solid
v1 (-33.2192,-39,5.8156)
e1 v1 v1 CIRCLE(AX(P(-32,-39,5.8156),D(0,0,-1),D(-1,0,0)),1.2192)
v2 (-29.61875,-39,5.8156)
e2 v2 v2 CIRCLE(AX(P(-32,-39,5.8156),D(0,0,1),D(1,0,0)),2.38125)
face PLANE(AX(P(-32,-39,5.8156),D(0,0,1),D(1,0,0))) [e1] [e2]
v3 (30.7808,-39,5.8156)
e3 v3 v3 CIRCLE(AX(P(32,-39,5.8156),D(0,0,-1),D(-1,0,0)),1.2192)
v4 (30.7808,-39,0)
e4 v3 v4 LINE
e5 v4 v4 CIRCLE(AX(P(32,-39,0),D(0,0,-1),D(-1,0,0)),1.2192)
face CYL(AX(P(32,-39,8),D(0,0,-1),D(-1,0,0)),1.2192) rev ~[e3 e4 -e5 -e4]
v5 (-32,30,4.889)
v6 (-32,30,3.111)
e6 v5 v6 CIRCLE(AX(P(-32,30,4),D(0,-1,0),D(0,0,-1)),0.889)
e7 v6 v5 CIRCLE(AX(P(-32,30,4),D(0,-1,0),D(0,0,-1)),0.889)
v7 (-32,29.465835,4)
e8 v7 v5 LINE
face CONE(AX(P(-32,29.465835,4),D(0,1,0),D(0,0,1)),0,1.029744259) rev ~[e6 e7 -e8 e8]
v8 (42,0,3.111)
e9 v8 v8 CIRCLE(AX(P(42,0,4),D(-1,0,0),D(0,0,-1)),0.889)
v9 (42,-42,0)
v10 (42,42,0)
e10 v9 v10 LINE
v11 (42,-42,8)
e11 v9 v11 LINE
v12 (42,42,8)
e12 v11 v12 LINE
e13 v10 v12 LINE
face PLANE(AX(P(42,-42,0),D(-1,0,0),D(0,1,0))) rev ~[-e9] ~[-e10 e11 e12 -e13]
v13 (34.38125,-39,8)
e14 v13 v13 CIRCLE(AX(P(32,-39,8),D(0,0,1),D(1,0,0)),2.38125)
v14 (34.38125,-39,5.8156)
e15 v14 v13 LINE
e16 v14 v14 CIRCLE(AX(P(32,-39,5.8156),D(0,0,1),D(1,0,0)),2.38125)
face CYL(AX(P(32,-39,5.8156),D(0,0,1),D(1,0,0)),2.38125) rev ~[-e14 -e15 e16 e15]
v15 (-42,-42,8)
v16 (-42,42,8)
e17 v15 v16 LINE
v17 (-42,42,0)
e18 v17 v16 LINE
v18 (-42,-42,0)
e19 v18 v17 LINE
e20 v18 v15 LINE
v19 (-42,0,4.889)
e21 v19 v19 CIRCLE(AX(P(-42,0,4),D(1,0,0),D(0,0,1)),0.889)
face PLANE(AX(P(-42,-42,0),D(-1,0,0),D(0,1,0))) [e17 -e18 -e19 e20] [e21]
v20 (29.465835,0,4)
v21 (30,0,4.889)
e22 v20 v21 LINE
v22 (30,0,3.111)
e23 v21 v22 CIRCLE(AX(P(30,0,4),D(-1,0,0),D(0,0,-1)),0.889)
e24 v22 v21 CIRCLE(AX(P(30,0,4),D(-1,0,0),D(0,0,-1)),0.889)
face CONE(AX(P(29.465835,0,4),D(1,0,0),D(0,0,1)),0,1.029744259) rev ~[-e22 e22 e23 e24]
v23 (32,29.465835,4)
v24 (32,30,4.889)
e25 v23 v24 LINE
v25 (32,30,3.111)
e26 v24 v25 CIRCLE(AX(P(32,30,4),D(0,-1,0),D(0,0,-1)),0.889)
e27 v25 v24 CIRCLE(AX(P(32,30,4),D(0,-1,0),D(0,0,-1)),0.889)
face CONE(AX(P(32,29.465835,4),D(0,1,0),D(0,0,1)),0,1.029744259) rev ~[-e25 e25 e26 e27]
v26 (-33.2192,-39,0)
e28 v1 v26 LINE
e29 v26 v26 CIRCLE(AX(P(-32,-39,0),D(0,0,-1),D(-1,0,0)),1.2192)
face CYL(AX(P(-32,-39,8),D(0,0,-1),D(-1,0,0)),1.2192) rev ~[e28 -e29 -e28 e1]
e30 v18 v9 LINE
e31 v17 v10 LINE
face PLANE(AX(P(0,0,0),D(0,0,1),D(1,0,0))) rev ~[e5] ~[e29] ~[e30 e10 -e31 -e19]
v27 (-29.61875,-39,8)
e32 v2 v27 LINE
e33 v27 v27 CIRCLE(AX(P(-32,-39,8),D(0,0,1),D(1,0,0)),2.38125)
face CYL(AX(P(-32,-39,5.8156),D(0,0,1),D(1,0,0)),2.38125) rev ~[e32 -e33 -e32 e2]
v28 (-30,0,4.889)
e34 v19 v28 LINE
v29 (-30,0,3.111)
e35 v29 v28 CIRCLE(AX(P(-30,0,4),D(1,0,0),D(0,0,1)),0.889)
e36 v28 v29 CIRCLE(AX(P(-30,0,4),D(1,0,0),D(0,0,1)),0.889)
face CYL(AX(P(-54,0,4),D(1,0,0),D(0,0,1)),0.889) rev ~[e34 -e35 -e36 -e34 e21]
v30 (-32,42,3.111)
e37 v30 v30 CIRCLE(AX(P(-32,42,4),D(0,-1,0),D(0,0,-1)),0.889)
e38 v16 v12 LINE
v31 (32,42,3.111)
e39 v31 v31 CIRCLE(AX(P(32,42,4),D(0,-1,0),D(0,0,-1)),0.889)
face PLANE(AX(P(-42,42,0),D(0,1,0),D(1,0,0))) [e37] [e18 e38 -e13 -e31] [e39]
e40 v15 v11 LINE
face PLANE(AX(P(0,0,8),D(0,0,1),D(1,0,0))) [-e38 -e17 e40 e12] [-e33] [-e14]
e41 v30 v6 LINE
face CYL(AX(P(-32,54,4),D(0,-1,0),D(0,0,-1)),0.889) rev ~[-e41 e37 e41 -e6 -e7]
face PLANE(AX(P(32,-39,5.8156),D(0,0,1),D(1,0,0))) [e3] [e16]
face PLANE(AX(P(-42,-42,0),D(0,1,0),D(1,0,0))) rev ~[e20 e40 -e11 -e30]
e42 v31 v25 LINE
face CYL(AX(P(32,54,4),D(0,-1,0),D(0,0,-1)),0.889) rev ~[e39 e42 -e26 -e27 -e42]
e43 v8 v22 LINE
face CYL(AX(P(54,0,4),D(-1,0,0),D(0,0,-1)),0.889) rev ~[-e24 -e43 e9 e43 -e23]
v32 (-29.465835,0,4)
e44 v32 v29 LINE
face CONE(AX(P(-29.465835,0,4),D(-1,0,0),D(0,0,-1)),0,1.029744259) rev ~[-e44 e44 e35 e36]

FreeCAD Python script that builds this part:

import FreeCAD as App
import Part
import Sketcher
from FreeCAD import Vector

doc = App.newDocument("Part")
body = doc.addObject("PartDesign::Body", "Body")

# Sketch on XY plane
sketch1 = body.newObject("Sketcher::SketchObject", "Sketch")
sketch1.AttachmentSupport = (doc.getObject("XY_Plane"), [""])
sketch1.MapMode = "FlatFace"
sketch1.addGeometry(Part.LineSegment(Vector(-42, 42, 0), Vector(-42, -42, 0)), False)
sketch1.addGeometry(Part.LineSegment(Vector(-42, -42, 0), Vector(42, -42, 0)), False)
sketch1.addGeometry(Part.LineSegment(Vector(42, -42, 0), Vector(42, 42, 0)), False)
sketch1.addGeometry(Part.LineSegment(Vector(42, 42, 0), Vector(-42, 42, 0)), False)
sketch1.addConstraint(Sketcher.Constraint("Coincident", 0, 2, 1, 1))
sketch1.addConstraint(Sketcher.Constraint("Coincident", 1, 2, 2, 1))
sketch1.addConstraint(Sketcher.Constraint("Coincident", 2, 2, 3, 1))
sketch1.addConstraint(Sketcher.Constraint("Coincident", 3, 2, 0, 1))
sketch1.addConstraint(Sketcher.Constraint("Vertical", 0))
sketch1.addConstraint(Sketcher.Constraint("Horizontal", 1))
sketch1.addConstraint(Sketcher.Constraint("Vertical", 2))
sketch1.addConstraint(Sketcher.Constraint("Horizontal", 3))
sketch1.addConstraint(Sketcher.Constraint("Symmetric", 0, 2, 2, 2, -1, 1))
sketch1.addConstraint(Sketcher.Constraint("Equal", 3, 0))
sketch1.addConstraint(Sketcher.Constraint("DistanceX", 1, 1, 1, 2, 84.0))
pad1 = body.newObject("PartDesign::Pad", "Pad")
pad1.Profile = sketch1
pad1.Length = 8

# Sketch on XY plane
sketch2 = body.newObject("Sketcher::SketchObject", "Sketch001")
sketch2.AttachmentSupport = (doc.getObject("XY_Plane"), [""])
sketch2.MapMode = "FlatFace"
sketch2.AttachmentOffset = App.Placement(Vector(0, 0, 8), App.Rotation())
sketch2.addGeometry(Part.Circle(Vector(-32, -39, 0), Vector(0, 0, 1), 1.2), False)
sketch2.addGeometry(Part.Circle(Vector(32, -39, 0), Vector(0, 0, 1), 1.2), False)
sketch2.addConstraint(Sketcher.Constraint("Equal", 0, 1))
sketch2.addConstraint(Sketcher.Constraint("Symmetric", 0, 3, 1, 3, -2))
sketch2.addConstraint(Sketcher.Constraint("DistanceX", 0, 3, -1, 1, 32.0))
sketch2.addConstraint(Sketcher.Constraint("DistanceY", 0, 3, -1, 1, 39.0))
sketch2.addConstraint(Sketcher.Constraint("Diameter", 0, 2.4384))
doc.recompute()
hole = body.newObject("PartDesign::Hole", "Hole")
hole.Profile = sketch2
hole.ThreadType = "None"
hole.Diameter = 2.4384
hole.DepthType = "Dimension"
hole.Depth = 8
hole.DrillPoint = "Flat"
hole.HoleCutType = "Counterbore"
hole.HoleCutDiameter = 4.7625
hole.HoleCutDepth = 2.1844

# Sketch on YZ plane
sketch3 = body.newObject("Sketcher::SketchObject", "Sketch002")
sketch3.AttachmentSupport = (doc.getObject("YZ_Plane"), [""])
sketch3.MapMode = "FlatFace"
sketch3.AttachmentOffset = App.Placement(Vector(0, 0, 42), App.Rotation())
sketch3.addGeometry(Part.Circle(Vector(0, 4, 0), Vector(0, 0, 1), 0.9), False)
sketch3.addConstraint(Sketcher.Constraint("PointOnObject", 0, 3, -2))
sketch3.addConstraint(Sketcher.Constraint("Diameter", 0, 1.778))
sketch3.addConstraint(Sketcher.Constraint("DistanceY", -1, 1, 0, 3, 4.0))
doc.recompute()
hole2 = body.newObject("PartDesign::Hole", "Hole001")
hole2.Profile = sketch3
hole2.ThreadType = "None"
hole2.Diameter = 1.778
hole2.DepthType = "Dimension"
hole2.Depth = 12
hole2.DrillPoint = "Angled"
hole2.DrillPointAngle = 118

# Sketch on YZ plane
sketch4 = body.newObject("Sketcher::SketchObject", "Sketch003")
sketch4.AttachmentSupport = (doc.getObject("YZ_Plane"), [""])
sketch4.MapMode = "FlatFace"
sketch4.AttachmentOffset = App.Placement(Vector(0, 0, -42), App.Rotation())
sketch4.addGeometry(Part.Circle(Vector(0, 4, 0), Vector(0, 0, 1), 0.9), False)
sketch4.addConstraint(Sketcher.Constraint("PointOnObject", 0, 3, -2))
sketch4.addConstraint(Sketcher.Constraint("Diameter", 0, 1.778))
sketch4.addConstraint(Sketcher.Constraint("DistanceY", -1, 1, 0, 3, 4.0))
doc.recompute()
hole3 = body.newObject("PartDesign::Hole", "Hole002")
hole3.Profile = sketch4
hole3.ThreadType = "None"
hole3.Diameter = 1.778
hole3.DepthType = "Dimension"
hole3.Depth = 12
hole3.DrillPoint = "Angled"
hole3.DrillPointAngle = 118
hole3.Reversed = True

# Sketch on XZ plane
sketch5 = body.newObject("Sketcher::SketchObject", "Sketch004")
sketch5.AttachmentSupport = (doc.getObject("XZ_Plane"), [""])
sketch5.MapMode = "FlatFace"
sketch5.AttachmentOffset = App.Placement(Vector(0, 0, -42), App.Rotation())
sketch5.addGeometry(Part.Circle(Vector(-32, 4, 0), Vector(0, 0, 1), 0.9), False)
sketch5.addGeometry(Part.Circle(Vector(32, 4, 0), Vector(0, 0, 1), 0.9), False)
sketch5.addConstraint(Sketcher.Constraint("Equal", 0, 1))
sketch5.addConstraint(Sketcher.Constraint("Symmetric", 0, 3, 1, 3, -2))
sketch5.addConstraint(Sketcher.Constraint("Diameter", 0, 1.778))
sketch5.addConstraint(Sketcher.Constraint("DistanceX", 0, 3, -1, 1, 32.0))
sketch5.addConstraint(Sketcher.Constraint("DistanceY", -1, 1, 0, 3, 4.0))
doc.recompute()
hole4 = body.newObject("PartDesign::Hole", "Hole003")
hole4.Profile = sketch5
hole4.ThreadType = "None"
hole4.Diameter = 1.778
hole4.DepthType = "Dimension"
hole4.Depth = 12
hole4.DrillPoint = "Angled"
hole4.DrillPointAngle = 118
hole4.Reversed = True

doc.recompute()
